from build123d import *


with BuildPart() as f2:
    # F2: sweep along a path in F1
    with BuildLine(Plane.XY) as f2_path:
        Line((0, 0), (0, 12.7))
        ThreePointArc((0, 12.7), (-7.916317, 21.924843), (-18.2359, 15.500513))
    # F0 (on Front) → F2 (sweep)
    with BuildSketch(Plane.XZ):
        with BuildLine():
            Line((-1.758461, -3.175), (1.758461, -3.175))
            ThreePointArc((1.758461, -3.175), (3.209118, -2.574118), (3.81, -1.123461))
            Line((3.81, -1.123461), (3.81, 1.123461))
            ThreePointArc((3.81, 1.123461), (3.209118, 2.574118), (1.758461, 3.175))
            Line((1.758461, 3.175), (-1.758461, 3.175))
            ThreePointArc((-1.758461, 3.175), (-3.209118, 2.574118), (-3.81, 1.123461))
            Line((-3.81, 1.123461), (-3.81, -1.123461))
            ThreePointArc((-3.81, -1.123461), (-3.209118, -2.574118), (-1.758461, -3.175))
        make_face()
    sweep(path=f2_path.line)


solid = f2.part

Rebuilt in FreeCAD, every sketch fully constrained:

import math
import FreeCAD as App
import Part
import Sketcher
Q = App.Units.Quantity

doc = App.newDocument("Part")
body = doc.addObject("PartDesign::Body", "Body")

# Sketch on XZ plane
sketch1 = body.newObject("Sketcher::SketchObject", "Sketch")
sketch1.AttachmentSupport = (doc.getObject("XZ_Plane"), [""])
sketch1.MapMode = "FlatFace"
sketch1.addGeometry(Part.LineSegment(App.Vector(-1.8, -3.2, 0), App.Vector(1.8, -3.2, 0)), False)
sketch1.addGeometry(Part.ArcOfCircle(Part.Circle(App.Vector(1.8, -1.1, 0), App.Vector(0, 0, 1), 2.1), math.radians(-90), math.radians(0)), False)
sketch1.addGeometry(Part.LineSegment(App.Vector(3.8, -1.1, 0), App.Vector(3.8, 1.1, 0)), False)
sketch1.addGeometry(Part.ArcOfCircle(Part.Circle(App.Vector(1.8, 1.1, 0), App.Vector(0, 0, 1), 2.1), math.radians(0), math.radians(90)), False)
sketch1.addGeometry(Part.LineSegment(App.Vector(1.8, 3.2, 0), App.Vector(-1.8, 3.2, 0)), False)
sketch1.addGeometry(Part.ArcOfCircle(Part.Circle(App.Vector(-1.8, 1.1, 0), App.Vector(0, 0, 1), 2.1), math.radians(90), math.radians(180)), False)
sketch1.addGeometry(Part.LineSegment(App.Vector(-3.8, 1.1, 0), App.Vector(-3.8, -1.1, 0)), False)
sketch1.addGeometry(Part.ArcOfCircle(Part.Circle(App.Vector(-1.8, -1.1, 0), App.Vector(0, 0, 1), 2.1), math.radians(-180), math.radians(-90)), False)
sketch1.addConstraint(Sketcher.Constraint("Tangent", 0, 2, 1, 1))
sketch1.addConstraint(Sketcher.Constraint("Tangent", 1, 2, 2, 1))
sketch1.addConstraint(Sketcher.Constraint("Tangent", 2, 2, 3, 1))
sketch1.addConstraint(Sketcher.Constraint("Tangent", 3, 2, 4, 1))
sketch1.addConstraint(Sketcher.Constraint("Tangent", 4, 2, 5, 1))
sketch1.addConstraint(Sketcher.Constraint("Tangent", 5, 2, 6, 1))
sketch1.addConstraint(Sketcher.Constraint("Tangent", 6, 2, 7, 1))
sketch1.addConstraint(Sketcher.Constraint("Tangent", 7, 2, 0, 1))
sketch1.addConstraint(Sketcher.Constraint("Horizontal", 0))
sketch1.addConstraint(Sketcher.Constraint("Vertical", 2))
sketch1.addConstraint(Sketcher.Constraint("Horizontal", 4))
sketch1.addConstraint(Sketcher.Constraint("Vertical", 6))
sketch1.addConstraint(Sketcher.Constraint("Equal", 1, 3))
sketch1.addConstraint(Sketcher.Constraint("Equal", 3, 5))
sketch1.addConstraint(Sketcher.Constraint("Equal", 5, 7))
sketch1.addConstraint(Sketcher.Constraint("Symmetric", 1, 3, 5, 3, -1, 1))
sketch1.addConstraint(Sketcher.Constraint("DistanceX", -1, 1, 1, 2, Q("0.15 in")))
sketch1.addConstraint(Sketcher.Constraint("DistanceY", 0, 2, -1, 1, Q("0.125 in")))
sketch1.addConstraint(Sketcher.Constraint("Radius", 1, Q("2.051539 mm")))

# Sketch on XY plane
sketch2 = body.newObject("Sketcher::SketchObject", "Sketch001")
sketch2.AttachmentSupport = (doc.getObject("XY_Plane"), [""])
sketch2.MapMode = "FlatFace"
sketch2.addGeometry(Part.LineSegment(App.Vector(0, 0, 0), App.Vector(0, 13, 0)), False)
sketch2.addGeometry(Part.ArcOfCircle(Part.Circle(App.Vector(-9, 13, 0), App.Vector(0, 0, 1), 9), math.radians(0), math.radians(163)), False)
sketch2.addConstraint(Sketcher.Constraint("Tangent", 0, 2, 1, 1))
sketch2.addConstraint(Sketcher.Constraint("Vertical", 0))
sketch2.addConstraint(Sketcher.Constraint("Coincident", 0, 1, -1, 1))
sketch2.addConstraint(Sketcher.Constraint("DistanceY", 0, 1, 0, 2, Q("0.5 in")))
sketch2.addConstraint(Sketcher.Constraint("Radius", 1, Q("9.332989 mm")))
sketch2.addConstraint(Sketcher.Constraint("DistanceX", 1, 2, -1, 1, Q("18.2359 mm")))
doc.recompute()

additivepipe = body.newObject("PartDesign::AdditivePipe", "AdditivePipe")
additivepipe.Profile = sketch1
additivepipe.Spine = (sketch2, ["Edge1", "Edge2"])

doc.recompute()
